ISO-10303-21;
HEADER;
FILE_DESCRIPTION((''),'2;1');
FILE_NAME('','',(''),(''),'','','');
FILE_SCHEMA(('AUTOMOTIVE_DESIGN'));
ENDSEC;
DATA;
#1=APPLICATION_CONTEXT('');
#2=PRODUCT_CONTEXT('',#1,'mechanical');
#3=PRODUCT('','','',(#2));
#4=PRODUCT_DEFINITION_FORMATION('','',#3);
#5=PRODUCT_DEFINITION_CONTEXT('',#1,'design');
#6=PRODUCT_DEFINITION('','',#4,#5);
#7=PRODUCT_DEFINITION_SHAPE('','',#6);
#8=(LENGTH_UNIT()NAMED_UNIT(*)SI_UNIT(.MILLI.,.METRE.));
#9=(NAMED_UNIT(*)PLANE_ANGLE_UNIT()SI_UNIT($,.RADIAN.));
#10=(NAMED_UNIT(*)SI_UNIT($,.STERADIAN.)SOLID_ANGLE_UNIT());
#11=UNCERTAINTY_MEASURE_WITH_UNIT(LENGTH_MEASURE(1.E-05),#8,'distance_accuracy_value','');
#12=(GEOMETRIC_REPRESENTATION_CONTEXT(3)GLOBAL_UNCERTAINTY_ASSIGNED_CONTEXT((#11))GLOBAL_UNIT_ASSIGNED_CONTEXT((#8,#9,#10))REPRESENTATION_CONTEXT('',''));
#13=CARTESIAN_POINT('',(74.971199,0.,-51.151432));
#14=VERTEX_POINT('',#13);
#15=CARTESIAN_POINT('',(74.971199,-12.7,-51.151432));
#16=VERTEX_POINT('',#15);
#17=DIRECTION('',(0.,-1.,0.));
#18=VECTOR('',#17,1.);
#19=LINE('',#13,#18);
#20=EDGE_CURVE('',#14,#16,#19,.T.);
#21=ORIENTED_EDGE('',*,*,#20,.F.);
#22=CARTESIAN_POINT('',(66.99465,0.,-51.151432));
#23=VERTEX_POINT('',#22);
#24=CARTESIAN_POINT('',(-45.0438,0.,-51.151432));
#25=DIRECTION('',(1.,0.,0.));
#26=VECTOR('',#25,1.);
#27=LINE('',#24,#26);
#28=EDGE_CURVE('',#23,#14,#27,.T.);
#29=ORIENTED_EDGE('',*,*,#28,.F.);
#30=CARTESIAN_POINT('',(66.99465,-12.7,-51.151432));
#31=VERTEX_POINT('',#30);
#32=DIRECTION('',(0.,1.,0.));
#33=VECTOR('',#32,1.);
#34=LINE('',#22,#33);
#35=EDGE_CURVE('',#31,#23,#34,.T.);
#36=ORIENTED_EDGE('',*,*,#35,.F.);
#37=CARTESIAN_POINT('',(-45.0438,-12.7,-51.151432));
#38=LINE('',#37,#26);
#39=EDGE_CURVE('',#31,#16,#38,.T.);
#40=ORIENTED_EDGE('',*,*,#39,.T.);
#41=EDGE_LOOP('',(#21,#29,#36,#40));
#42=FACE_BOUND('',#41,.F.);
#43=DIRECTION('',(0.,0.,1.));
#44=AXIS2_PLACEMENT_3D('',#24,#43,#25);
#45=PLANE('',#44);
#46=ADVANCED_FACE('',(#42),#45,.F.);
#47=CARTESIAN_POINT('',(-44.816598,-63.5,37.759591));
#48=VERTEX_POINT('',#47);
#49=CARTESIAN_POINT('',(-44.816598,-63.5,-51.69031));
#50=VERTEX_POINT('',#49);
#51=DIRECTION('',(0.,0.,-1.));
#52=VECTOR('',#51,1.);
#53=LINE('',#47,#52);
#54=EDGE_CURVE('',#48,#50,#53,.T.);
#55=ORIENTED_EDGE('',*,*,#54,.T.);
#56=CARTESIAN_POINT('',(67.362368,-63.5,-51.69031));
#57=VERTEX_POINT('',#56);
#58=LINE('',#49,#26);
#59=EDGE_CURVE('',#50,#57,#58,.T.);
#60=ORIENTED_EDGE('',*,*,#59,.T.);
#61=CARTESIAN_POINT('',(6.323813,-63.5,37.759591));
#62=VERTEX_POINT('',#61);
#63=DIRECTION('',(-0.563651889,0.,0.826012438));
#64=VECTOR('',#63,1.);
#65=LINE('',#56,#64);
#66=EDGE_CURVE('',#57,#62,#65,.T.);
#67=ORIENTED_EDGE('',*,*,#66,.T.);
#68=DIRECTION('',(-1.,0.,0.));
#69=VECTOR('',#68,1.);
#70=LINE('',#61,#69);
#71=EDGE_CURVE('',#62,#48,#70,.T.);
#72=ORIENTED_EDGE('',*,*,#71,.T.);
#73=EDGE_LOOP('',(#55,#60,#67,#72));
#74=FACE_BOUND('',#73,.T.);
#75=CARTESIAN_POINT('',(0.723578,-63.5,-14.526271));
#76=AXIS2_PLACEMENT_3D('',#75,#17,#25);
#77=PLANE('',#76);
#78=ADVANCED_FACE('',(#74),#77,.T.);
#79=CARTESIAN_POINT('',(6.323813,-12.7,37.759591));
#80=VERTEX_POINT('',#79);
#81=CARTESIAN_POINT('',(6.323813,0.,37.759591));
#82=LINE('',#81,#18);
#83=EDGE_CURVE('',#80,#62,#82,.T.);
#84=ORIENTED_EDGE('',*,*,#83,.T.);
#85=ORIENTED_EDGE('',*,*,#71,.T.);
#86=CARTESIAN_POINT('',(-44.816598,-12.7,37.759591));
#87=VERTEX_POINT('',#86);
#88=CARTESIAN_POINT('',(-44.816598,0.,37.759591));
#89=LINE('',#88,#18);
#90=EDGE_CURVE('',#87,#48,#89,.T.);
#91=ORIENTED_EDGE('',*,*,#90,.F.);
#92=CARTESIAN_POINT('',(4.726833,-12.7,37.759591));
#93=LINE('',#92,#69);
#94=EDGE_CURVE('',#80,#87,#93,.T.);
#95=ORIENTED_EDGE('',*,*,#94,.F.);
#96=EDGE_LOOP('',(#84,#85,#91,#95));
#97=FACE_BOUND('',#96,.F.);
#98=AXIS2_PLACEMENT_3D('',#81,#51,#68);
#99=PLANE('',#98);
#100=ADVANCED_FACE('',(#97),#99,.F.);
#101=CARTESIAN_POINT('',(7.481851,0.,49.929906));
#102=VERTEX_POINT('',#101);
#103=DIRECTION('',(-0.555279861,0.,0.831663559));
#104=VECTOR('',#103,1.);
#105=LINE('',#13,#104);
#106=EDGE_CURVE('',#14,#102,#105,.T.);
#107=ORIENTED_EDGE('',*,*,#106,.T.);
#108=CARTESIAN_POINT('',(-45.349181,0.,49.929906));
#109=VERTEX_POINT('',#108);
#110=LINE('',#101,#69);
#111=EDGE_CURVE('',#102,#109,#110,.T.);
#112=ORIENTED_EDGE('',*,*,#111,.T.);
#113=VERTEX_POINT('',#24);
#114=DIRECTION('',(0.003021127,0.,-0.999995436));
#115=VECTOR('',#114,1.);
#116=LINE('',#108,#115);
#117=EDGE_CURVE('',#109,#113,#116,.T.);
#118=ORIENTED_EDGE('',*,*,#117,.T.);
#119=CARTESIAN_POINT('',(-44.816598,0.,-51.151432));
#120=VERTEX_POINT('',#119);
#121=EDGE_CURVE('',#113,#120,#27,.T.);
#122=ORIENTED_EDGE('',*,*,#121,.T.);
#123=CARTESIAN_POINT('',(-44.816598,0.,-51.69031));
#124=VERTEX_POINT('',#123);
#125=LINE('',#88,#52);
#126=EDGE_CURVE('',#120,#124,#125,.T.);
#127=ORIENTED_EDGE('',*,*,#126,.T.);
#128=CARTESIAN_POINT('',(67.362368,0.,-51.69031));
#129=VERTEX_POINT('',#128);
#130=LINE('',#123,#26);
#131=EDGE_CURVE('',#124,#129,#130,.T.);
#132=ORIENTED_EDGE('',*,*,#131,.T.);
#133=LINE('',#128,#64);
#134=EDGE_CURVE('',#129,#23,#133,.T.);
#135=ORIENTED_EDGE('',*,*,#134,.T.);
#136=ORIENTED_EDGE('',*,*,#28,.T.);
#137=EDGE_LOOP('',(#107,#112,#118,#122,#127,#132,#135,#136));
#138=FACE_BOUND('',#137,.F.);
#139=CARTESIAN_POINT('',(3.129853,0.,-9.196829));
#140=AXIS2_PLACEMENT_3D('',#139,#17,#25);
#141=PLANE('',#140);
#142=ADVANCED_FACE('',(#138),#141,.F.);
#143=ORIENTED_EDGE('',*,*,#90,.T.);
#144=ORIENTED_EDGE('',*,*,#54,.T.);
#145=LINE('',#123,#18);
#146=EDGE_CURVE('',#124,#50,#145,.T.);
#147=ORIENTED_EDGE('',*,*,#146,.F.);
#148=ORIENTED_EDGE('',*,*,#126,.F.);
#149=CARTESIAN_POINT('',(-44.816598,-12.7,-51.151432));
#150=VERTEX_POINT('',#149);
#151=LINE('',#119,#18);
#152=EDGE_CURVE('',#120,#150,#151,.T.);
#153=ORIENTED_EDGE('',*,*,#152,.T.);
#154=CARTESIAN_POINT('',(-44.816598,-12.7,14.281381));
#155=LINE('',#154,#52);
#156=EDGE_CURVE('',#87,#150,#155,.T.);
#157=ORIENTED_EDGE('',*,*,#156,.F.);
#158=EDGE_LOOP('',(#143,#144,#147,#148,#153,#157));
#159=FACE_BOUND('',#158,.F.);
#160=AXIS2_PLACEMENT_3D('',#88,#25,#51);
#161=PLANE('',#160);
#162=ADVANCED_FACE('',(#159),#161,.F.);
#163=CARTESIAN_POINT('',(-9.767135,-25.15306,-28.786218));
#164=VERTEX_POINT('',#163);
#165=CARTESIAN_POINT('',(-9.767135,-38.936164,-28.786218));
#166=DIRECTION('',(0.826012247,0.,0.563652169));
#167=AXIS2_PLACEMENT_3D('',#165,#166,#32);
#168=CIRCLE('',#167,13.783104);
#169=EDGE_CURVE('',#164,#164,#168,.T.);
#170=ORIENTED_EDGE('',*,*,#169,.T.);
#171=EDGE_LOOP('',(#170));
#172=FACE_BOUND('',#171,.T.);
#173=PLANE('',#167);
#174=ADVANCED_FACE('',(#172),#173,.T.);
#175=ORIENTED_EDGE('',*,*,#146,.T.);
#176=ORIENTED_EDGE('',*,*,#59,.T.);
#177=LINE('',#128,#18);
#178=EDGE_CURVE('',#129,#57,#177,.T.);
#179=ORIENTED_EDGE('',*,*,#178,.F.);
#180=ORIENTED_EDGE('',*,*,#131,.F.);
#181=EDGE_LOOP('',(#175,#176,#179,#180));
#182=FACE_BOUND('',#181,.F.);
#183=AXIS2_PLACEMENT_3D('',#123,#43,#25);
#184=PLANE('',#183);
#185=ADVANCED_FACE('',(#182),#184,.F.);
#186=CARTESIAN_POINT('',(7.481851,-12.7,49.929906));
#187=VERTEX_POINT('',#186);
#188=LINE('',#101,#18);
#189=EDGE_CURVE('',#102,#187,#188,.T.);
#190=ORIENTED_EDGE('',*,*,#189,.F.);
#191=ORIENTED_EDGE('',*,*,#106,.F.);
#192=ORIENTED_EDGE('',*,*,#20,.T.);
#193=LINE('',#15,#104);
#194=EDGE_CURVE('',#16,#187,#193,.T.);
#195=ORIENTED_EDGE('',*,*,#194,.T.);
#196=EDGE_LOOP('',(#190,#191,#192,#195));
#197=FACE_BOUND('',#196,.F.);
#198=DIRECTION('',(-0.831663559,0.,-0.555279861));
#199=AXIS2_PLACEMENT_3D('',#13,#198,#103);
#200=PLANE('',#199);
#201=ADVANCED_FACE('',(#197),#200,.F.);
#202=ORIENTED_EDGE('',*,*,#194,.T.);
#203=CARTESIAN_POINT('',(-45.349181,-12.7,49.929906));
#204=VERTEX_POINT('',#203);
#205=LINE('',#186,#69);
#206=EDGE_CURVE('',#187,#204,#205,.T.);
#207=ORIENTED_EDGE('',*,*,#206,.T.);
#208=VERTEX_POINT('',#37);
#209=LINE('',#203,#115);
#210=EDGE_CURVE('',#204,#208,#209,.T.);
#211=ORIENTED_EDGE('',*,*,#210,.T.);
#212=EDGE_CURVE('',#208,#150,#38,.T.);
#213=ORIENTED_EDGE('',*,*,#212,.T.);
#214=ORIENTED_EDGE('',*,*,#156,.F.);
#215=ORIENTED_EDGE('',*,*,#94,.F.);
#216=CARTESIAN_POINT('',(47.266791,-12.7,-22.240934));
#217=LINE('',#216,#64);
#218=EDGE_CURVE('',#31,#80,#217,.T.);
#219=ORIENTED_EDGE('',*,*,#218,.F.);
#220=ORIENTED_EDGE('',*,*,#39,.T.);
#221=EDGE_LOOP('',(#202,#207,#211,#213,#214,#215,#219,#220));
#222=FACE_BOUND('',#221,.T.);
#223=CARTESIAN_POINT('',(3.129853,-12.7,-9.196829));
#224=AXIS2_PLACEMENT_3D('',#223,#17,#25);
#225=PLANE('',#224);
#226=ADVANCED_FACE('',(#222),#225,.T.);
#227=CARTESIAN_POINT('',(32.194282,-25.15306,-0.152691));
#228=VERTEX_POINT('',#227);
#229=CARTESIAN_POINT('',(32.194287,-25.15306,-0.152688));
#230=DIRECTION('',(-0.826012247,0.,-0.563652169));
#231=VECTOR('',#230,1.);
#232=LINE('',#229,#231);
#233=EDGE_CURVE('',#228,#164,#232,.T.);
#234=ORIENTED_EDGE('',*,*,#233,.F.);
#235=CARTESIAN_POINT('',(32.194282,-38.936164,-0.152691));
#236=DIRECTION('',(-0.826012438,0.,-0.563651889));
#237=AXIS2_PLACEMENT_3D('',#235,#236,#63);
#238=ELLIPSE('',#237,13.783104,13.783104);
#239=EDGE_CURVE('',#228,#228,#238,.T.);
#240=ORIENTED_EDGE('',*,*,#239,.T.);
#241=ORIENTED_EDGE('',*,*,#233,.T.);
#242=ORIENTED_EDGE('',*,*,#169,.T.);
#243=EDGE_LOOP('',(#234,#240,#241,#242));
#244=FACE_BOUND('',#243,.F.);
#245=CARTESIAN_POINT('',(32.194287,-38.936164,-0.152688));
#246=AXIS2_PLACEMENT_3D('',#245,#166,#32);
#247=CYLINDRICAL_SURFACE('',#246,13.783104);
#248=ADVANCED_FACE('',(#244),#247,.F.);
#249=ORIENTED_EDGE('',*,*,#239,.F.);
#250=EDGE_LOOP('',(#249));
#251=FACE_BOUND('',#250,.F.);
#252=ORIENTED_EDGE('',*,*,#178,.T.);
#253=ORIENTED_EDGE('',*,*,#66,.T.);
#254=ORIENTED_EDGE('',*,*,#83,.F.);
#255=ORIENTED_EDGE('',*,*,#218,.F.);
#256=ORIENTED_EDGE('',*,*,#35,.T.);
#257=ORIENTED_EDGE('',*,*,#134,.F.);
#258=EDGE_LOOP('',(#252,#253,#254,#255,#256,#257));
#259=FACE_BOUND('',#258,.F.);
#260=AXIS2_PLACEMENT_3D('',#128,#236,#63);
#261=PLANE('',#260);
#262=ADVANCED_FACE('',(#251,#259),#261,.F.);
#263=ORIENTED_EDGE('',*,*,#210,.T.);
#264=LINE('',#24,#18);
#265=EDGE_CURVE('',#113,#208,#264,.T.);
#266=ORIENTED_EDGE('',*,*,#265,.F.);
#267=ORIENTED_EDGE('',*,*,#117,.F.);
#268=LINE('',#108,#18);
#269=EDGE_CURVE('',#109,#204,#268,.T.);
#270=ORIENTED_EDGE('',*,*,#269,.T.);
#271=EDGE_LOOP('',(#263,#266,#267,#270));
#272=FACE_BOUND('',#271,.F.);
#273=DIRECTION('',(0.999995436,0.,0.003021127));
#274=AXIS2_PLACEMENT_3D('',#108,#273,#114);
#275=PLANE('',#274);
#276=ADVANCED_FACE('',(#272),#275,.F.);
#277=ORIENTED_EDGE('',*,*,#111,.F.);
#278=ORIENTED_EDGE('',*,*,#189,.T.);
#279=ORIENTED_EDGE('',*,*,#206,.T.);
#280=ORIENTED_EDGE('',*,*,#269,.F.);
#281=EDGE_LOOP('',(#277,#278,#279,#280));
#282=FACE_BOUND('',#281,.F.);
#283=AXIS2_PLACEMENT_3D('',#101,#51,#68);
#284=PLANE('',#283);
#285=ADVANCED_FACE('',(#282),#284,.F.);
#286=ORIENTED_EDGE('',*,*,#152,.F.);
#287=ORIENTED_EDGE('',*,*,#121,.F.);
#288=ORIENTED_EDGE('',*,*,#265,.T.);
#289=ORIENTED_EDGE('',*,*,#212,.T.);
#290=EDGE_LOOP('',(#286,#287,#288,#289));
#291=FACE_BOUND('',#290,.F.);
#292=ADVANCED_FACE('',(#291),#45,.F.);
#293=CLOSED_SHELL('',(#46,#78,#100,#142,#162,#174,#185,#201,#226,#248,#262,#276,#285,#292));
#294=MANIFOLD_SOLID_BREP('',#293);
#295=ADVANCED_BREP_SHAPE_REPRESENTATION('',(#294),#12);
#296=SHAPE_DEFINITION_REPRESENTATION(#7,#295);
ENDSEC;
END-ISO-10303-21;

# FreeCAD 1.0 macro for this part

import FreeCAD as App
import Part
import Sketcher
Q = App.Units.Quantity


def add_polygon(sketch, points):
    """Adds a closed chain of lines whose ends are joined by coincident constraints."""
    first, n = sketch.GeometryCount, len(points)
    for a, b in zip(points, points[1:] + points[:1]):
        sketch.addGeometry(Part.LineSegment(App.Vector(*a, 0), App.Vector(*b, 0)), False)
    for i in range(n):
        sketch.addConstraint(Sketcher.Constraint("Coincident", first + i, 2, first + (i + 1) % n, 1))

doc = App.newDocument("Part")
body = doc.addObject("PartDesign::Body", "Body")

# Sketch on XZ plane
sketch1 = body.newObject("Sketcher::SketchObject", "Sketch")
sketch1.AttachmentSupport = (doc.getObject("XZ_Plane"), [""])
sketch1.MapMode = "FlatFace"
add_polygon(sketch1, [(6, 38), (-45, 38), (-45, -52), (67, -52)])  # lines 0-3
sketch1.addConstraint([
    Sketcher.Constraint("Horizontal", 0),
    Sketcher.Constraint("Vertical", 1),
    Sketcher.Constraint("Horizontal", 2),
    Sketcher.Constraint("DistanceY", 1, 2, 1, 1, Q("89.449901 mm")),
    Sketcher.Constraint("DistanceX", 0, 2, 0, 1, Q("51.140411 mm")),
    Sketcher.Constraint("DistanceX", 2, 1, 2, 2, Q("112.178966 mm")),
    Sketcher.Constraint("DistanceY", -1, 1, 0, 2, Q("37.759591 mm")),
    Sketcher.Constraint("DistanceX", -1, 1, 2, 2, Q("67.362368 mm")),
])
pad1 = body.newObject("PartDesign::Pad", "Pad")
pad1.Profile = sketch1
pad1.Length = Q("2.5 in")

# Sketch on XZ plane
sketch2 = body.newObject("Sketcher::SketchObject", "Sketch001")
sketch2.AttachmentSupport = (doc.getObject("XZ_Plane"), [""])
sketch2.MapMode = "FlatFace"
add_polygon(sketch2, [(-45, 50), (-45, -51), (75, -51), (7, 50)])  # lines 0-3
sketch2.addConstraint([
    Sketcher.Constraint("Horizontal", 1),
    Sketcher.Constraint("Horizontal", 3),
    Sketcher.Constraint("DistanceX", 1, 1, 1, 2, Q("4.725 in")),
    Sketcher.Constraint("Angle", 2, Q("123.729993 deg")),
    Sketcher.Constraint("Distance", 0, Q("101.081799 mm")),
    Sketcher.Constraint("DistanceX", 0, 2, -1, 1, Q("45.0438 mm")),
    Sketcher.Constraint("DistanceX", 3, 2, 3, 1, Q("52.831032 mm")),
    Sketcher.Constraint("DistanceY", 0, 2, -1, 1, Q("51.151432 mm")),
])
pad2 = body.newObject("PartDesign::Pad", "Pad001")
pad2.Profile = sketch2
pad2.Length = Q("0.5 in")

# Sketch on an angled plane
sketch3 = body.newObject("Sketcher::SketchObject", "Sketch002")
sketch3.Placement = App.Placement(App.Vector(21.894957, 0, 14.940615), App.Rotation(App.Vector(0, 1, 0), App.Vector(-0.563652169, 0, 0.826012247), App.Vector(0.826012247, 0, 0.563652169), "ZXY"))
sketch3.addGeometry(Part.Circle(App.Vector(-39, -18, 0), App.Vector(0, 0, 1), 14), False)
sketch3.addConstraint([
    Sketcher.Constraint("Diameter", 0, Q("27.566208 mm")),
    Sketcher.Constraint("DistanceX", 0, 3, -1, 1, Q("38.936164 mm")),
    Sketcher.Constraint("DistanceY", 0, 3, -1, 1, Q("18.272493 mm")),
])
pocket1 = body.newObject("PartDesign::Pocket", "Pocket")
pocket1.Profile = sketch3
pocket1.Length = Q("2 in")

doc.recompute()
